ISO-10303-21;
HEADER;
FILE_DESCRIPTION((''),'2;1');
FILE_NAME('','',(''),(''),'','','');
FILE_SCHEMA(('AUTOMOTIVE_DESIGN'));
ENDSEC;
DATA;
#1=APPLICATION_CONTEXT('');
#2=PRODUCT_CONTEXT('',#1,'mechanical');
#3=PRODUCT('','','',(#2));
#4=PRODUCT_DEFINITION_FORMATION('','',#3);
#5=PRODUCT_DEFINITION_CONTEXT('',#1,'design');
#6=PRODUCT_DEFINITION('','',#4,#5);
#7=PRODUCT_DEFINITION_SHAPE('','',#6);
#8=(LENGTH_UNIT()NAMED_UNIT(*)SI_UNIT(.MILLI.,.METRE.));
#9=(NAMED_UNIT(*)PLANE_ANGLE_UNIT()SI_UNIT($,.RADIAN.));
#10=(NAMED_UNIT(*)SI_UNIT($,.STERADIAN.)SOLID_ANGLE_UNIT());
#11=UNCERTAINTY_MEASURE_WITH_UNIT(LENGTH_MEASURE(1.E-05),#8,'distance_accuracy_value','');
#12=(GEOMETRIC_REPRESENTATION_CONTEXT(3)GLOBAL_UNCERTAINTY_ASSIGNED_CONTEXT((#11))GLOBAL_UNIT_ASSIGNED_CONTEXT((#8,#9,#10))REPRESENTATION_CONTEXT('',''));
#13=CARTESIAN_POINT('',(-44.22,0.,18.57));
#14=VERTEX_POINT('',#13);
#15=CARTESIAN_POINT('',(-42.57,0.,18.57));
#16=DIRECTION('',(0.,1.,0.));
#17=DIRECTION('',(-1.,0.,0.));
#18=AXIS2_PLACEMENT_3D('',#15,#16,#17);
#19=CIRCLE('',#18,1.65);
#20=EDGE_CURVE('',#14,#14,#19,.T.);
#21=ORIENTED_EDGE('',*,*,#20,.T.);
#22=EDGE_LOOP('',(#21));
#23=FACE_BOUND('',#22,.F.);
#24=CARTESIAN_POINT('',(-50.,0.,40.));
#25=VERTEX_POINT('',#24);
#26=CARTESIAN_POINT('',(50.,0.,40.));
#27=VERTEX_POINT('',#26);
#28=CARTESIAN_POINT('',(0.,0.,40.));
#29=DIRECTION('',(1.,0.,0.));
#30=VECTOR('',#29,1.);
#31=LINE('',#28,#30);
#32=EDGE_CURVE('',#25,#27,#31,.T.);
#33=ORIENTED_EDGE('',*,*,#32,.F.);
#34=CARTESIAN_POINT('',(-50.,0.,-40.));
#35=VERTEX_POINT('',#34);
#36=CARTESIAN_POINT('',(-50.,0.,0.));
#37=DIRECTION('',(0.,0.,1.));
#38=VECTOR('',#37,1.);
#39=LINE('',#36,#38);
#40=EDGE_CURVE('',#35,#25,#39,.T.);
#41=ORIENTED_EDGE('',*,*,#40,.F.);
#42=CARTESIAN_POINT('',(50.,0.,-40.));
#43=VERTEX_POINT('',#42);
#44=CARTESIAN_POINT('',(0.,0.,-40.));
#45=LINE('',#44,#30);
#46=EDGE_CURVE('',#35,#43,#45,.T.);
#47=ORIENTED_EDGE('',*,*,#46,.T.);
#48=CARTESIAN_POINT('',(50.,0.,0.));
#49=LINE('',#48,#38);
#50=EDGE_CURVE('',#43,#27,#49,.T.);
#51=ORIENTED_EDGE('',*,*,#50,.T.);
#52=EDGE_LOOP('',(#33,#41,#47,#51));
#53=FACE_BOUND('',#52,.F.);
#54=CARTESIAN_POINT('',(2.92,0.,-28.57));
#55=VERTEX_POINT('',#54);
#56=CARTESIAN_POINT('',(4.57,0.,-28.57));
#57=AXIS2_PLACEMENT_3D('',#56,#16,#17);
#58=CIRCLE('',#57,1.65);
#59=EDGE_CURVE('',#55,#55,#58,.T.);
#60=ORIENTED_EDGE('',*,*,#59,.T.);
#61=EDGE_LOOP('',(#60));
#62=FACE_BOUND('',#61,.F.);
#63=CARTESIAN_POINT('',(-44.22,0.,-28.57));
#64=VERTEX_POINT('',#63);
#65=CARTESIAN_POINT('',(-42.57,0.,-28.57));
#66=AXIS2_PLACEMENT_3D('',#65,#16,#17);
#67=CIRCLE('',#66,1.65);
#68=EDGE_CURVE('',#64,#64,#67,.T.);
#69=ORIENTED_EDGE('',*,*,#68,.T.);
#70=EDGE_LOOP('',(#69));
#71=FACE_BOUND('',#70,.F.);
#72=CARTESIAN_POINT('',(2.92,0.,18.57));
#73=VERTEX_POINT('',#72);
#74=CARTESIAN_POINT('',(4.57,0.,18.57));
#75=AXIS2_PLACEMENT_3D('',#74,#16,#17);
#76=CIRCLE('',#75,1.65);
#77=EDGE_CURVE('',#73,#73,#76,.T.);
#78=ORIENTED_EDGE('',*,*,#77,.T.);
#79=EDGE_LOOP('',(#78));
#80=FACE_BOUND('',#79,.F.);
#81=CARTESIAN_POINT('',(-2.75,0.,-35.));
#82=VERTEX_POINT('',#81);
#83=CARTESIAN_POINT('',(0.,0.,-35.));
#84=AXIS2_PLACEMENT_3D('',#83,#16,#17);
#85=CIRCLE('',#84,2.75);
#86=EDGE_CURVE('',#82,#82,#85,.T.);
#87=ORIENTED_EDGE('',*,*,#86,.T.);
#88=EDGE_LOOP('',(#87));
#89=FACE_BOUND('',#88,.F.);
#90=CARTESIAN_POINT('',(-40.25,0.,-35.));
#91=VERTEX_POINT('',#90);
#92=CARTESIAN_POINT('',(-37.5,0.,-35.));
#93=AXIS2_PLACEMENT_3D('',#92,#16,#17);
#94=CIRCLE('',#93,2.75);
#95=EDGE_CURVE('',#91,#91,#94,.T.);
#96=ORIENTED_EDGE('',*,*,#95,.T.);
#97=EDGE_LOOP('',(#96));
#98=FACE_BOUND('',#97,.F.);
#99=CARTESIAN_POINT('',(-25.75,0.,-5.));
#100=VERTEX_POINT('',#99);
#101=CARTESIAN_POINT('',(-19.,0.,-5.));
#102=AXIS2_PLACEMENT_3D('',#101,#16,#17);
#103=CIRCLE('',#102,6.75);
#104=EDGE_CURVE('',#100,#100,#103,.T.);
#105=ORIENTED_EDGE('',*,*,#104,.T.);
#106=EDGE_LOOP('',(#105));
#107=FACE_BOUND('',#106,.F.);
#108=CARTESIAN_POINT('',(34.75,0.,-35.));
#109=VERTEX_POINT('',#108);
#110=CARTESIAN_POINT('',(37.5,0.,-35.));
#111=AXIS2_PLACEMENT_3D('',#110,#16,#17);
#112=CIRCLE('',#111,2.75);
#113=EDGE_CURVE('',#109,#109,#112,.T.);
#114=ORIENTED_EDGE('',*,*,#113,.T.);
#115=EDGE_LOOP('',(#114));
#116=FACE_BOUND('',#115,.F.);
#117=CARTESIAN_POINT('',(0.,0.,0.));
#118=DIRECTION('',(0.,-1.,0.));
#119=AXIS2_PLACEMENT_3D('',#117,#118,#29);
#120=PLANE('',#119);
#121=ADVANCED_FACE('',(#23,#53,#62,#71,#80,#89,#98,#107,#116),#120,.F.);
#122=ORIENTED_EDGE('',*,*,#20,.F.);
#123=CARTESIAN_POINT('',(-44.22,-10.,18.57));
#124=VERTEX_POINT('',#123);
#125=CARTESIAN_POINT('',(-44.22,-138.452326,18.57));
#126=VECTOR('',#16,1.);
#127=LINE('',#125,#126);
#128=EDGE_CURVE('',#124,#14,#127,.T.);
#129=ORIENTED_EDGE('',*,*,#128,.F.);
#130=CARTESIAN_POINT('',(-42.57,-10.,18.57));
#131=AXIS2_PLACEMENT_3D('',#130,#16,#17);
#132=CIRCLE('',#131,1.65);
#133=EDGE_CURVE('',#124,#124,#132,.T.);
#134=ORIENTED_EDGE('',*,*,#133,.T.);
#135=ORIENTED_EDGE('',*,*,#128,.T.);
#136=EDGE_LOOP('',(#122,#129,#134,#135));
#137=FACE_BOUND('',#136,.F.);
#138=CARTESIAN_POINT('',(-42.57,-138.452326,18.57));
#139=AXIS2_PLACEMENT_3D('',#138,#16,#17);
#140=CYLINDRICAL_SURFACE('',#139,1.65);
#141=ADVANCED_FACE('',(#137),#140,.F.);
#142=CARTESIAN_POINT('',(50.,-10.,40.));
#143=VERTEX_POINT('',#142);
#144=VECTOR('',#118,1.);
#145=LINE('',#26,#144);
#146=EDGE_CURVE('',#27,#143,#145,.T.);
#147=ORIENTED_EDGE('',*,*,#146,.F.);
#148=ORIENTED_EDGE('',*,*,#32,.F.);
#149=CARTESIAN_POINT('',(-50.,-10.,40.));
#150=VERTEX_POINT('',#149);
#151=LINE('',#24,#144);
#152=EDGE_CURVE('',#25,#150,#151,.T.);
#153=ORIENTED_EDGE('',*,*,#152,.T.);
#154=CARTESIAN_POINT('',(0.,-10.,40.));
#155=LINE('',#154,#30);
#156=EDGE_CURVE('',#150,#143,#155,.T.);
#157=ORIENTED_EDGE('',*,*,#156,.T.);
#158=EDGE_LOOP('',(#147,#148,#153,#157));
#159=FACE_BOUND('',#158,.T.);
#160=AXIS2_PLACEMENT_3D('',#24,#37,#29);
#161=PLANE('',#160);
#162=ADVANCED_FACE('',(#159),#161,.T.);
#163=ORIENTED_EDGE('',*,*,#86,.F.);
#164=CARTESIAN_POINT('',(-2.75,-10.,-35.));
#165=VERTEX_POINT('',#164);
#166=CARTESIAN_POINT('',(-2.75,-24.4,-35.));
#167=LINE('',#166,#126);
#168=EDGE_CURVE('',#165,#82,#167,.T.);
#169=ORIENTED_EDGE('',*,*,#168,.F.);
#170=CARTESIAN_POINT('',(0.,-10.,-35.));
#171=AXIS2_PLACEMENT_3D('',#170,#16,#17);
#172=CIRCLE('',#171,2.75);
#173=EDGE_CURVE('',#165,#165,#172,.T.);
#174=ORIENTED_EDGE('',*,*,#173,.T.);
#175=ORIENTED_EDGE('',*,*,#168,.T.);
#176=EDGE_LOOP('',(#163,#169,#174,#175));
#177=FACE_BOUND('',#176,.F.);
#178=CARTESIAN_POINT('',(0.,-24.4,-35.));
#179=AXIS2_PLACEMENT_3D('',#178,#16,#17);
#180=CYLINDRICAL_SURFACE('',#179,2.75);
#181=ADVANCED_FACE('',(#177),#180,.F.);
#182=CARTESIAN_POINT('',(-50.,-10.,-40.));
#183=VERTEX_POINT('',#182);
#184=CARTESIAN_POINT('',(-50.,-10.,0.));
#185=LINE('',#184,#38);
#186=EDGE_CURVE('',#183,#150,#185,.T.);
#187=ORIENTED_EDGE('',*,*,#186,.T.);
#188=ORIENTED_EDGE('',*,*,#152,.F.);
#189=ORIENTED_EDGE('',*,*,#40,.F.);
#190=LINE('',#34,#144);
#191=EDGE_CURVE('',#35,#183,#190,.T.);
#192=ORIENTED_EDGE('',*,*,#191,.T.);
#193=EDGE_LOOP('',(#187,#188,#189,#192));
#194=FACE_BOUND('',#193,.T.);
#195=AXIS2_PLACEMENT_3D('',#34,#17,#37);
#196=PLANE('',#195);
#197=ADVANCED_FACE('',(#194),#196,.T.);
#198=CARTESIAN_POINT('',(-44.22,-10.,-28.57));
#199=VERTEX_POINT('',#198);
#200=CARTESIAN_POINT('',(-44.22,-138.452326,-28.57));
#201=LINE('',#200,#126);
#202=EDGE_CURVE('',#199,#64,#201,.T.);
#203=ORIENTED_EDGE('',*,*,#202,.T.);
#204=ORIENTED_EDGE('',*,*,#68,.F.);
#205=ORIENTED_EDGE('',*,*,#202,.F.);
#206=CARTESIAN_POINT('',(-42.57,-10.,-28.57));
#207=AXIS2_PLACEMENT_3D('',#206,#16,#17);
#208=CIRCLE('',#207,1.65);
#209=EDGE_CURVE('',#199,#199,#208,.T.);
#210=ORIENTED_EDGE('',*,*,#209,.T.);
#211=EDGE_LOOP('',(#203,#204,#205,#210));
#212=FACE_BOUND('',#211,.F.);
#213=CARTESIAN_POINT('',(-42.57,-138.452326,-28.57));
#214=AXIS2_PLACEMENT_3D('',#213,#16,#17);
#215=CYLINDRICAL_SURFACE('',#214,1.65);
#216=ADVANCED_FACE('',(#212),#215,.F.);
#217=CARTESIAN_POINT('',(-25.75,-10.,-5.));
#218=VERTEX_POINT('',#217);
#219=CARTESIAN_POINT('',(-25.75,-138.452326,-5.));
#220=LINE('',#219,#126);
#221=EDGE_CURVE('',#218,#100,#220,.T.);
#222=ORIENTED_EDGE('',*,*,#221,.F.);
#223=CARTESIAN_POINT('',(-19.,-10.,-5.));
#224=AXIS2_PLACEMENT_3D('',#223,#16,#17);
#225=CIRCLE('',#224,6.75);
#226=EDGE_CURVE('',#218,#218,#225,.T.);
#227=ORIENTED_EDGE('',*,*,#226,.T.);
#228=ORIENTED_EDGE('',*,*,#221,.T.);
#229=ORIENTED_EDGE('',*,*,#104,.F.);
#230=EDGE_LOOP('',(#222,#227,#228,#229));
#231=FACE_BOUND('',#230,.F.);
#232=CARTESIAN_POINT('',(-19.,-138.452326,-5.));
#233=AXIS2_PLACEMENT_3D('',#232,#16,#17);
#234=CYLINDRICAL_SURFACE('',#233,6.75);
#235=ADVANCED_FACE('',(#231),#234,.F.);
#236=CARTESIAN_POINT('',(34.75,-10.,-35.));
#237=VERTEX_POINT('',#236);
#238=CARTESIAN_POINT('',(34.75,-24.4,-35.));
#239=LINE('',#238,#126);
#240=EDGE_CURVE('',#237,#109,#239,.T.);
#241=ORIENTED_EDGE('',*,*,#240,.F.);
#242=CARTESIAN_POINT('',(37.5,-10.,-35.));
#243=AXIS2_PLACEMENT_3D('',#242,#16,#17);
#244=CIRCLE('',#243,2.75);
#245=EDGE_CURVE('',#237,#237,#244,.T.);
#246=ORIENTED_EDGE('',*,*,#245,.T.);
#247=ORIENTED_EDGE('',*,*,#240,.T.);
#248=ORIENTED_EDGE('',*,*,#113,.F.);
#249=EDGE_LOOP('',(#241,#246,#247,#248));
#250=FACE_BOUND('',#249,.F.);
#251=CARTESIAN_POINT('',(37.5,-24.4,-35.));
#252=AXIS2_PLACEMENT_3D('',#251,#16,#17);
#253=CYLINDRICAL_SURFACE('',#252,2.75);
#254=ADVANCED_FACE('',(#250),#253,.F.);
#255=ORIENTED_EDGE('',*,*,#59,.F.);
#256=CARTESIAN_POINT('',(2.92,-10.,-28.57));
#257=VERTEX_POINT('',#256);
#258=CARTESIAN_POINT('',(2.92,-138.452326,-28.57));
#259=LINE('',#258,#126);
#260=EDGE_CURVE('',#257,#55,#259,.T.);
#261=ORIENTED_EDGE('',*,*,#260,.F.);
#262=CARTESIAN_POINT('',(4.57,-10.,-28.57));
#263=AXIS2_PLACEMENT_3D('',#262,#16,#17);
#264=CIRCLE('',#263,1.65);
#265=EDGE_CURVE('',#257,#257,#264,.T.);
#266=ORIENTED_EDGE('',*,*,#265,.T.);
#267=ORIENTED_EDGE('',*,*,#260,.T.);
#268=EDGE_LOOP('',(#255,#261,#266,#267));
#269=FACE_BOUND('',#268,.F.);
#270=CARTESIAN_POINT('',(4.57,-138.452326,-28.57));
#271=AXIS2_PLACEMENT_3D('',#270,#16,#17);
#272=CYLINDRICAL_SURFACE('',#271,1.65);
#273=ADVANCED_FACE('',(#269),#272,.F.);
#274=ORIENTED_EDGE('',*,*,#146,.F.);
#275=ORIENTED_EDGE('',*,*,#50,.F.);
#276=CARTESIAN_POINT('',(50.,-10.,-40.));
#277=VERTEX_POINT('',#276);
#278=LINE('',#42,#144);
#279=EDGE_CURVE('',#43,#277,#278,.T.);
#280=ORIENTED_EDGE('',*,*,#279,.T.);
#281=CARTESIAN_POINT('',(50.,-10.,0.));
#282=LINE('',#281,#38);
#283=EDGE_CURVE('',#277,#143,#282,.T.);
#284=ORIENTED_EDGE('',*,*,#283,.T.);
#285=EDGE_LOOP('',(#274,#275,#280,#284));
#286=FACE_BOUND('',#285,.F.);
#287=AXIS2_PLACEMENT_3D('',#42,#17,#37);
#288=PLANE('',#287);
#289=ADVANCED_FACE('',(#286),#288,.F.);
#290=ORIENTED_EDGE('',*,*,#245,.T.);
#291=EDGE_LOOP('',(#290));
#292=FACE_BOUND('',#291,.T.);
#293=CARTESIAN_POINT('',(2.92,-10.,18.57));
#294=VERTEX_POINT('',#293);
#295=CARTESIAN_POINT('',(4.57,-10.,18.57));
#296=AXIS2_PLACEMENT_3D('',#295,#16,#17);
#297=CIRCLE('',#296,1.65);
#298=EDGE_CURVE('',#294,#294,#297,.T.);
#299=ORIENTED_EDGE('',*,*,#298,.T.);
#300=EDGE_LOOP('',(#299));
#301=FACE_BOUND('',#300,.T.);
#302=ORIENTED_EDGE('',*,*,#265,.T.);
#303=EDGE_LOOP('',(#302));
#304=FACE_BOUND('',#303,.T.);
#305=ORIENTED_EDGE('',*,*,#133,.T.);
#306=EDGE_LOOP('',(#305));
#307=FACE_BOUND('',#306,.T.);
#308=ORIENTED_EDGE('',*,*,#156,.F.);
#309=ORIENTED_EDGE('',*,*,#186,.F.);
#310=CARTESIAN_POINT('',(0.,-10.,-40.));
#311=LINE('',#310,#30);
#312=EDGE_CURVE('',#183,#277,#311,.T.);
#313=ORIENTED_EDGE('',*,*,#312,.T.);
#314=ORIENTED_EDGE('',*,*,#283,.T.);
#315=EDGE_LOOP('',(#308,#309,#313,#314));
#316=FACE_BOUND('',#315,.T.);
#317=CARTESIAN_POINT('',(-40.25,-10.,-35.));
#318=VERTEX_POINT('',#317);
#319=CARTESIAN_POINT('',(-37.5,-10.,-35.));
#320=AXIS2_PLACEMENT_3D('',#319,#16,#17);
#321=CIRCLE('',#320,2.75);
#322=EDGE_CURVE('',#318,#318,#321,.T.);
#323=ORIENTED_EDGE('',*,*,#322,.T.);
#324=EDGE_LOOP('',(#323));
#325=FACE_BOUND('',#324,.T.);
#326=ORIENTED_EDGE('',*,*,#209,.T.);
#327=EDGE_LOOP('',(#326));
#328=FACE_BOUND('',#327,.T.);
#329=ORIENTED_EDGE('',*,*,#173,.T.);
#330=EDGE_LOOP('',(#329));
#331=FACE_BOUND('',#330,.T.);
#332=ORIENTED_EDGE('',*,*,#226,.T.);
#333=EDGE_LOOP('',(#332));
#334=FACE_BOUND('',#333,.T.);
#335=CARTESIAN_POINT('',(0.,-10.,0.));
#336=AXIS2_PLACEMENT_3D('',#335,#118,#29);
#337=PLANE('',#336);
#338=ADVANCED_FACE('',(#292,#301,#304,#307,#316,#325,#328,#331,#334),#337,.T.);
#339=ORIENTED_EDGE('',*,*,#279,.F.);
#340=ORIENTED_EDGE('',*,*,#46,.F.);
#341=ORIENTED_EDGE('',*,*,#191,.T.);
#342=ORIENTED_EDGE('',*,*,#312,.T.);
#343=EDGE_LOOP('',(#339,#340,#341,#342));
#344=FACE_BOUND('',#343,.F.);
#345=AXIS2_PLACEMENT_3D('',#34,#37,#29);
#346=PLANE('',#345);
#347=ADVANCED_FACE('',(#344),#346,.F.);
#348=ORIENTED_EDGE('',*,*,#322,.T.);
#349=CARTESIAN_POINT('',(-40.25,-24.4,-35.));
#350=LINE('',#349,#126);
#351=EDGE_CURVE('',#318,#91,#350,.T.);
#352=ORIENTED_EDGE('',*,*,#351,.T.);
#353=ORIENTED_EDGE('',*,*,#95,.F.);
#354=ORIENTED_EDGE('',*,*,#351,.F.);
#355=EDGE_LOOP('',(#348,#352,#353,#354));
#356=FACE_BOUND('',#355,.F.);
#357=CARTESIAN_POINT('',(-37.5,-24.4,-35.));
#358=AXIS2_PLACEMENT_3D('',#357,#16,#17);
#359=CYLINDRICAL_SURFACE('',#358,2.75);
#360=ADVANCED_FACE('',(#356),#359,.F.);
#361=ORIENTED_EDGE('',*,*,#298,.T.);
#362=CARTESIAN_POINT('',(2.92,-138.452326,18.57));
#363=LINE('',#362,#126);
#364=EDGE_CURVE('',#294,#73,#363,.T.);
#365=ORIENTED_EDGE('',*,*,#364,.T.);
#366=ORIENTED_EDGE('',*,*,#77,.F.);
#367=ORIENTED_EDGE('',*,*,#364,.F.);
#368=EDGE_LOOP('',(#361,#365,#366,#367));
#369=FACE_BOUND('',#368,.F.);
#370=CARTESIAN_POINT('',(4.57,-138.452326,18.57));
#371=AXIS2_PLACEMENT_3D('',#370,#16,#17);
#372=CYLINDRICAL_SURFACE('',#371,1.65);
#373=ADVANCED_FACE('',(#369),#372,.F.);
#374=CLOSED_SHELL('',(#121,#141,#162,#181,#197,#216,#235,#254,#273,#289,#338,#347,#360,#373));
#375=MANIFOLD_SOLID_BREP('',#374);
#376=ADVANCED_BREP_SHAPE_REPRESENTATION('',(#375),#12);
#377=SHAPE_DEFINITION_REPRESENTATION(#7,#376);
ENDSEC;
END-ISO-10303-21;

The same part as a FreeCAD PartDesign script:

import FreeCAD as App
import Part
import Sketcher

V = App.Vector


def add_polygon(sketch, points):
    """Adds a closed chain of lines whose ends are joined by coincident constraints."""
    first, n = sketch.GeometryCount, len(points)
    for a, b in zip(points, points[1:] + points[:1]):
        sketch.addGeometry(Part.LineSegment(App.Vector(*a, 0), App.Vector(*b, 0)), False)
    for i in range(n):
        sketch.addConstraint(Sketcher.Constraint("Coincident", first + i, 2, first + (i + 1) % n, 1))

doc = App.newDocument("Part")
body = doc.addObject("PartDesign::Body", "Body")

# Sketch on XZ plane
sketch1 = body.newObject("Sketcher::SketchObject", "Sketch")
sketch1.AttachmentSupport = (doc.getObject("XZ_Plane"), [""])
sketch1.MapMode = "FlatFace"
add_polygon(sketch1, [(-50, 40), (-50, -40), (50, -40), (50, 40)])  # lines 0-3
sketch1.addConstraint([
    Sketcher.Constraint("Vertical", 0),
    Sketcher.Constraint("Horizontal", 1),
    Sketcher.Constraint("Vertical", 2),
    Sketcher.Constraint("Horizontal", 3),
    Sketcher.Constraint("Symmetric", 0, 2, 2, 2, -1, 1),
    Sketcher.Constraint("DistanceX", 1, 1, 1, 2, 100.0),
    Sketcher.Constraint("DistanceY", 0, 2, 0, 1, 80.0),
])
pad1 = body.newObject("PartDesign::Pad", "Pad")
pad1.Profile = sketch1
pad1.Length = 10

# Sketch on XZ plane
sketch2 = body.newObject("Sketcher::SketchObject", "Sketch001")
sketch2.AttachmentSupport = (doc.getObject("XZ_Plane"), [""])
sketch2.MapMode = "FlatFace"
sketch2.AttachmentOffset = App.Placement(V(0, 0, 10), App.Rotation())
sketch2.addGeometry([
    Part.Circle(V(-42.6, 18.6, 0), V(0, 0, 1), 1.6),
    Part.Circle(V(4.6, 18.6, 0), V(0, 0, 1), 1.6),
    Part.Circle(V(-42.6, -28.6, 0), V(0, 0, 1), 1.6),
    Part.Circle(V(4.6, -28.6, 0), V(0, 0, 1), 1.6),
], False)
sketch2.addConstraint([
    Sketcher.Constraint("Equal", 0, 1),
    Sketcher.Constraint("Equal", 1, 2),
    Sketcher.Constraint("Equal", 2, 3),
    Sketcher.Constraint("Horizontal", 0, 3, 1, 3),
    Sketcher.Constraint("Horizontal", 2, 3, 3, 3),
    Sketcher.Constraint("Vertical", 0, 3, 2, 3),
    Sketcher.Constraint("Vertical", 1, 3, 3, 3),
    Sketcher.Constraint("Diameter", 0, 3.3),
    Sketcher.Constraint("DistanceX", 0, 3, -1, 1, 42.57),
    Sketcher.Constraint("DistanceY", -1, 1, 0, 3, 18.57),
    Sketcher.Constraint("DistanceX", -1, 1, 1, 3, 4.57),
    Sketcher.Constraint("DistanceY", 2, 3, -1, 1, 28.57),
])
doc.recompute()
hole = body.newObject("PartDesign::Hole", "Hole")
hole.Profile = sketch2
hole.ThreadType = "None"
hole.Diameter = 3.3
hole.DepthType = "ThroughAll"

# Sketch on XZ plane
sketch3 = body.newObject("Sketcher::SketchObject", "Sketch002")
sketch3.AttachmentSupport = (doc.getObject("XZ_Plane"), [""])
sketch3.MapMode = "FlatFace"
sketch3.AttachmentOffset = App.Placement(V(0, 0, 10), App.Rotation())
sketch3.addGeometry(Part.Circle(V(-19, -5, 0), V(0, 0, 1), 7), False)
sketch3.addConstraint([
    Sketcher.Constraint("Diameter", 0, 13.5),
    Sketcher.Constraint("DistanceX", 0, 3, -1, 1, 19.0),
    Sketcher.Constraint("DistanceY", 0, 3, -1, 1, 5.0),
])
doc.recompute()
hole2 = body.newObject("PartDesign::Hole", "Hole001")
hole2.Profile = sketch3
hole2.ThreadType = "None"
hole2.Diameter = 13.5
hole2.DepthType = "ThroughAll"

# Sketch on XZ plane
sketch4 = body.newObject("Sketcher::SketchObject", "Sketch003")
sketch4.AttachmentSupport = (doc.getObject("XZ_Plane"), [""])
sketch4.MapMode = "FlatFace"
sketch4.AttachmentOffset = App.Placement(V(0, 0, 10), App.Rotation())
sketch4.addGeometry([
    Part.Circle(V(-37.5, -35, 0), V(0, 0, 1), 2.8),
    Part.Circle(V(0, -35, 0), V(0, 0, 1), 2.8),
    Part.Circle(V(37.5, -35, 0), V(0, 0, 1), 2.8),
], False)
sketch4.addConstraint([
    Sketcher.Constraint("Equal", 0, 1),
    Sketcher.Constraint("Equal", 1, 2),
    Sketcher.Constraint("Symmetric", 0, 3, 2, 3, -2),
    Sketcher.Constraint("PointOnObject", 1, 3, -2),
    Sketcher.Constraint("Horizontal", 0, 3, 1, 3),
    Sketcher.Constraint("Diameter", 0, 5.5),
    Sketcher.Constraint("DistanceY", 0, 3, -1, 1, 35.0),
    Sketcher.Constraint("DistanceX", 0, 3, 2, 3, 75.0),
])
doc.recompute()
hole3 = body.newObject("PartDesign::Hole", "Hole002")
hole3.Profile = sketch4
hole3.ThreadType = "None"
hole3.Diameter = 5.5
hole3.DepthType = "Dimension"
hole3.Depth = 14.4
hole3.DrillPoint = "Angled"
hole3.DrillPointAngle = 118

doc.recompute()
